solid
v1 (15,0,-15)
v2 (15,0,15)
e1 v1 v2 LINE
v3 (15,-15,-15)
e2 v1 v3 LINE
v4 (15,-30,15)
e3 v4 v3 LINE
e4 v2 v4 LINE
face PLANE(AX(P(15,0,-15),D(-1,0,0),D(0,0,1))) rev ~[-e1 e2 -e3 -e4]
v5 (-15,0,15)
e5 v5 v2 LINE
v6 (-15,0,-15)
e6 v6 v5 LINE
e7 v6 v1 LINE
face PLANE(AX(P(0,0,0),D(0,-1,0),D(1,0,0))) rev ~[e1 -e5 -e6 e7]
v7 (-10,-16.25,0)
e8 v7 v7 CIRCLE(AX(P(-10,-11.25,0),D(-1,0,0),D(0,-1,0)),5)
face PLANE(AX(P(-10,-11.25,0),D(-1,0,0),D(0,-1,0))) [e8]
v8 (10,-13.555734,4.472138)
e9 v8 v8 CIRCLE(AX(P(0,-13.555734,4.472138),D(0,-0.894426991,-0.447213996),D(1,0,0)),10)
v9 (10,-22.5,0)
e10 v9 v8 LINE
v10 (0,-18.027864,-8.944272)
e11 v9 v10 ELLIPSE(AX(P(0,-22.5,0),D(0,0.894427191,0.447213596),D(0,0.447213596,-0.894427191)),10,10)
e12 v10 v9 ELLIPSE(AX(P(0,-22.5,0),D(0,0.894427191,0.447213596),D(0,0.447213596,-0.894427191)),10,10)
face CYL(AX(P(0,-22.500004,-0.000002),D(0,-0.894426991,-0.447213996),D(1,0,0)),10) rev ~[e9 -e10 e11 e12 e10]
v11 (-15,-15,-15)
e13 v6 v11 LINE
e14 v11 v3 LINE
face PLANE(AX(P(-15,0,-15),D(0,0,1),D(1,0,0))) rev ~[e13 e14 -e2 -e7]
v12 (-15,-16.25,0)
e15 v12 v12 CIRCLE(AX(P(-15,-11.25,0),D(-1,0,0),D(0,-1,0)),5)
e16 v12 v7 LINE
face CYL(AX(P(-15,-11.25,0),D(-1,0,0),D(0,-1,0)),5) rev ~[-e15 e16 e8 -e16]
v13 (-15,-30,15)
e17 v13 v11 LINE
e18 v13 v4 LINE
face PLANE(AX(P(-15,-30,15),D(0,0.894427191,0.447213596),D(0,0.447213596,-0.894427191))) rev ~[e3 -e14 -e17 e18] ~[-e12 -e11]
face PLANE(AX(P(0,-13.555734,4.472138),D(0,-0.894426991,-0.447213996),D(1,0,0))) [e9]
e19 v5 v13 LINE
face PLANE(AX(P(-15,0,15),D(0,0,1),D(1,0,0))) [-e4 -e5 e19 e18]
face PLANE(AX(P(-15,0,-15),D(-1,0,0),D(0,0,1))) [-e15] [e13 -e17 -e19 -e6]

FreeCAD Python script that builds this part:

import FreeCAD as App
import Part
import Sketcher

V = App.Vector

doc = App.newDocument("Part")
body = doc.addObject("PartDesign::Body", "Body")

# Sketch on XZ plane
sketch1 = body.newObject("Sketcher::SketchObject", "Sketch")
sketch1.AttachmentSupport = (doc.getObject("XZ_Plane"), [""])
sketch1.MapMode = "FlatFace"
sketch1.addGeometry(Part.LineSegment(V(-15, 15, 0), V(-15, -15, 0)), False)
sketch1.addGeometry(Part.LineSegment(V(-15, -15, 0), V(15, -15, 0)), False)
sketch1.addGeometry(Part.LineSegment(V(15, -15, 0), V(15, 15, 0)), False)
sketch1.addGeometry(Part.LineSegment(V(15, 15, 0), V(-15, 15, 0)), False)
sketch1.addConstraint(Sketcher.Constraint("Coincident", 0, 2, 1, 1))
sketch1.addConstraint(Sketcher.Constraint("Coincident", 1, 2, 2, 1))
sketch1.addConstraint(Sketcher.Constraint("Coincident", 2, 2, 3, 1))
sketch1.addConstraint(Sketcher.Constraint("Coincident", 3, 2, 0, 1))
sketch1.addConstraint(Sketcher.Constraint("Vertical", 0))
sketch1.addConstraint(Sketcher.Constraint("Horizontal", 1))
sketch1.addConstraint(Sketcher.Constraint("Vertical", 2))
sketch1.addConstraint(Sketcher.Constraint("Horizontal", 3))
sketch1.addConstraint(Sketcher.Constraint("Symmetric", 0, 2, 2, 2, -1, 1))
sketch1.addConstraint(Sketcher.Constraint("Equal", 3, 0))
sketch1.addConstraint(Sketcher.Constraint("DistanceX", 1, 1, 1, 2, 30.0))
pad1 = body.newObject("PartDesign::Pad", "Pad")
pad1.Profile = sketch1
pad1.Length = 30

# Sketch on YZ plane
sketch2 = body.newObject("Sketcher::SketchObject", "Sketch001")
sketch2.AttachmentSupport = (doc.getObject("YZ_Plane"), [""])
sketch2.MapMode = "FlatFace"
sketch2.AttachmentOffset = App.Placement(V(0, 0, -15), App.Rotation())
sketch2.addGeometry(Part.LineSegment(V(-30, -15, 0), V(-30, 15, 0)), False)
sketch2.addGeometry(Part.LineSegment(V(-30, 15, 0), V(-15, -15, 0)), False)
sketch2.addGeometry(Part.LineSegment(V(-15, -15, 0), V(-30, -15, 0)), False)
sketch2.addConstraint(Sketcher.Constraint("Coincident", 0, 2, 1, 1))
sketch2.addConstraint(Sketcher.Constraint("Coincident", 1, 2, 2, 1))
sketch2.addConstraint(Sketcher.Constraint("Coincident", 2, 2, 0, 1))
sketch2.addConstraint(Sketcher.Constraint("Vertical", 0))
sketch2.addConstraint(Sketcher.Constraint("Horizontal", 2))
sketch2.addConstraint(Sketcher.Constraint("DistanceX", 2, 2, 2, 1, 15.0))
sketch2.addConstraint(Sketcher.Constraint("DistanceY", 0, 1, 0, 2, 30.0))
sketch2.addConstraint(Sketcher.Constraint("DistanceX", 0, 2, -1, 1, 30.0))
sketch2.addConstraint(Sketcher.Constraint("DistanceY", -1, 1, 0, 2, 15.0))
pocket1 = body.newObject("PartDesign::Pocket", "Pocket")
pocket1.Profile = sketch2
pocket1.Length = 30
pocket1.Reversed = True

# Sketch on an angled plane
sketch3 = body.newObject("Sketcher::SketchObject", "Sketch002")
sketch3.Placement = App.Placement(V(0, -18, -9), App.Rotation(V(1, 0, 0), V(0, -0.447213995, 0.894426991), V(0, -0.894426991, -0.447213995), "ZXY"))
sketch3.addGeometry(Part.Circle(V(0, 10, 0), V(0, 0, 1), 10), False)
sketch3.addConstraint(Sketcher.Constraint("PointOnObject", 0, 3, -2))
sketch3.addConstraint(Sketcher.Constraint("Diameter", 0, 20.0))
sketch3.addConstraint(Sketcher.Constraint("DistanceY", -1, 1, 0, 3, 10.062306))
pocket2 = body.newObject("PartDesign::Pocket", "Pocket001")
pocket2.Profile = sketch3
pocket2.Length = 10

# Sketch on YZ plane
sketch4 = body.newObject("Sketcher::SketchObject", "Sketch003")
sketch4.AttachmentSupport = (doc.getObject("YZ_Plane"), [""])
sketch4.MapMode = "FlatFace"
sketch4.AttachmentOffset = App.Placement(V(0, 0, -15), App.Rotation())
sketch4.addGeometry(Part.Circle(V(-11, 0, 0), V(0, 0, 1), 5), False)
sketch4.addConstraint(Sketcher.Constraint("PointOnObject", 0, 3, -1))
sketch4.addConstraint(Sketcher.Constraint("Diameter", 0, 10.0))
sketch4.addConstraint(Sketcher.Constraint("DistanceX", 0, 3, -1, 1, 11.25))
pocket3 = body.newObject("PartDesign::Pocket", "Pocket002")
pocket3.Profile = sketch4
pocket3.Length = 5
pocket3.Reversed = True

doc.recompute()
